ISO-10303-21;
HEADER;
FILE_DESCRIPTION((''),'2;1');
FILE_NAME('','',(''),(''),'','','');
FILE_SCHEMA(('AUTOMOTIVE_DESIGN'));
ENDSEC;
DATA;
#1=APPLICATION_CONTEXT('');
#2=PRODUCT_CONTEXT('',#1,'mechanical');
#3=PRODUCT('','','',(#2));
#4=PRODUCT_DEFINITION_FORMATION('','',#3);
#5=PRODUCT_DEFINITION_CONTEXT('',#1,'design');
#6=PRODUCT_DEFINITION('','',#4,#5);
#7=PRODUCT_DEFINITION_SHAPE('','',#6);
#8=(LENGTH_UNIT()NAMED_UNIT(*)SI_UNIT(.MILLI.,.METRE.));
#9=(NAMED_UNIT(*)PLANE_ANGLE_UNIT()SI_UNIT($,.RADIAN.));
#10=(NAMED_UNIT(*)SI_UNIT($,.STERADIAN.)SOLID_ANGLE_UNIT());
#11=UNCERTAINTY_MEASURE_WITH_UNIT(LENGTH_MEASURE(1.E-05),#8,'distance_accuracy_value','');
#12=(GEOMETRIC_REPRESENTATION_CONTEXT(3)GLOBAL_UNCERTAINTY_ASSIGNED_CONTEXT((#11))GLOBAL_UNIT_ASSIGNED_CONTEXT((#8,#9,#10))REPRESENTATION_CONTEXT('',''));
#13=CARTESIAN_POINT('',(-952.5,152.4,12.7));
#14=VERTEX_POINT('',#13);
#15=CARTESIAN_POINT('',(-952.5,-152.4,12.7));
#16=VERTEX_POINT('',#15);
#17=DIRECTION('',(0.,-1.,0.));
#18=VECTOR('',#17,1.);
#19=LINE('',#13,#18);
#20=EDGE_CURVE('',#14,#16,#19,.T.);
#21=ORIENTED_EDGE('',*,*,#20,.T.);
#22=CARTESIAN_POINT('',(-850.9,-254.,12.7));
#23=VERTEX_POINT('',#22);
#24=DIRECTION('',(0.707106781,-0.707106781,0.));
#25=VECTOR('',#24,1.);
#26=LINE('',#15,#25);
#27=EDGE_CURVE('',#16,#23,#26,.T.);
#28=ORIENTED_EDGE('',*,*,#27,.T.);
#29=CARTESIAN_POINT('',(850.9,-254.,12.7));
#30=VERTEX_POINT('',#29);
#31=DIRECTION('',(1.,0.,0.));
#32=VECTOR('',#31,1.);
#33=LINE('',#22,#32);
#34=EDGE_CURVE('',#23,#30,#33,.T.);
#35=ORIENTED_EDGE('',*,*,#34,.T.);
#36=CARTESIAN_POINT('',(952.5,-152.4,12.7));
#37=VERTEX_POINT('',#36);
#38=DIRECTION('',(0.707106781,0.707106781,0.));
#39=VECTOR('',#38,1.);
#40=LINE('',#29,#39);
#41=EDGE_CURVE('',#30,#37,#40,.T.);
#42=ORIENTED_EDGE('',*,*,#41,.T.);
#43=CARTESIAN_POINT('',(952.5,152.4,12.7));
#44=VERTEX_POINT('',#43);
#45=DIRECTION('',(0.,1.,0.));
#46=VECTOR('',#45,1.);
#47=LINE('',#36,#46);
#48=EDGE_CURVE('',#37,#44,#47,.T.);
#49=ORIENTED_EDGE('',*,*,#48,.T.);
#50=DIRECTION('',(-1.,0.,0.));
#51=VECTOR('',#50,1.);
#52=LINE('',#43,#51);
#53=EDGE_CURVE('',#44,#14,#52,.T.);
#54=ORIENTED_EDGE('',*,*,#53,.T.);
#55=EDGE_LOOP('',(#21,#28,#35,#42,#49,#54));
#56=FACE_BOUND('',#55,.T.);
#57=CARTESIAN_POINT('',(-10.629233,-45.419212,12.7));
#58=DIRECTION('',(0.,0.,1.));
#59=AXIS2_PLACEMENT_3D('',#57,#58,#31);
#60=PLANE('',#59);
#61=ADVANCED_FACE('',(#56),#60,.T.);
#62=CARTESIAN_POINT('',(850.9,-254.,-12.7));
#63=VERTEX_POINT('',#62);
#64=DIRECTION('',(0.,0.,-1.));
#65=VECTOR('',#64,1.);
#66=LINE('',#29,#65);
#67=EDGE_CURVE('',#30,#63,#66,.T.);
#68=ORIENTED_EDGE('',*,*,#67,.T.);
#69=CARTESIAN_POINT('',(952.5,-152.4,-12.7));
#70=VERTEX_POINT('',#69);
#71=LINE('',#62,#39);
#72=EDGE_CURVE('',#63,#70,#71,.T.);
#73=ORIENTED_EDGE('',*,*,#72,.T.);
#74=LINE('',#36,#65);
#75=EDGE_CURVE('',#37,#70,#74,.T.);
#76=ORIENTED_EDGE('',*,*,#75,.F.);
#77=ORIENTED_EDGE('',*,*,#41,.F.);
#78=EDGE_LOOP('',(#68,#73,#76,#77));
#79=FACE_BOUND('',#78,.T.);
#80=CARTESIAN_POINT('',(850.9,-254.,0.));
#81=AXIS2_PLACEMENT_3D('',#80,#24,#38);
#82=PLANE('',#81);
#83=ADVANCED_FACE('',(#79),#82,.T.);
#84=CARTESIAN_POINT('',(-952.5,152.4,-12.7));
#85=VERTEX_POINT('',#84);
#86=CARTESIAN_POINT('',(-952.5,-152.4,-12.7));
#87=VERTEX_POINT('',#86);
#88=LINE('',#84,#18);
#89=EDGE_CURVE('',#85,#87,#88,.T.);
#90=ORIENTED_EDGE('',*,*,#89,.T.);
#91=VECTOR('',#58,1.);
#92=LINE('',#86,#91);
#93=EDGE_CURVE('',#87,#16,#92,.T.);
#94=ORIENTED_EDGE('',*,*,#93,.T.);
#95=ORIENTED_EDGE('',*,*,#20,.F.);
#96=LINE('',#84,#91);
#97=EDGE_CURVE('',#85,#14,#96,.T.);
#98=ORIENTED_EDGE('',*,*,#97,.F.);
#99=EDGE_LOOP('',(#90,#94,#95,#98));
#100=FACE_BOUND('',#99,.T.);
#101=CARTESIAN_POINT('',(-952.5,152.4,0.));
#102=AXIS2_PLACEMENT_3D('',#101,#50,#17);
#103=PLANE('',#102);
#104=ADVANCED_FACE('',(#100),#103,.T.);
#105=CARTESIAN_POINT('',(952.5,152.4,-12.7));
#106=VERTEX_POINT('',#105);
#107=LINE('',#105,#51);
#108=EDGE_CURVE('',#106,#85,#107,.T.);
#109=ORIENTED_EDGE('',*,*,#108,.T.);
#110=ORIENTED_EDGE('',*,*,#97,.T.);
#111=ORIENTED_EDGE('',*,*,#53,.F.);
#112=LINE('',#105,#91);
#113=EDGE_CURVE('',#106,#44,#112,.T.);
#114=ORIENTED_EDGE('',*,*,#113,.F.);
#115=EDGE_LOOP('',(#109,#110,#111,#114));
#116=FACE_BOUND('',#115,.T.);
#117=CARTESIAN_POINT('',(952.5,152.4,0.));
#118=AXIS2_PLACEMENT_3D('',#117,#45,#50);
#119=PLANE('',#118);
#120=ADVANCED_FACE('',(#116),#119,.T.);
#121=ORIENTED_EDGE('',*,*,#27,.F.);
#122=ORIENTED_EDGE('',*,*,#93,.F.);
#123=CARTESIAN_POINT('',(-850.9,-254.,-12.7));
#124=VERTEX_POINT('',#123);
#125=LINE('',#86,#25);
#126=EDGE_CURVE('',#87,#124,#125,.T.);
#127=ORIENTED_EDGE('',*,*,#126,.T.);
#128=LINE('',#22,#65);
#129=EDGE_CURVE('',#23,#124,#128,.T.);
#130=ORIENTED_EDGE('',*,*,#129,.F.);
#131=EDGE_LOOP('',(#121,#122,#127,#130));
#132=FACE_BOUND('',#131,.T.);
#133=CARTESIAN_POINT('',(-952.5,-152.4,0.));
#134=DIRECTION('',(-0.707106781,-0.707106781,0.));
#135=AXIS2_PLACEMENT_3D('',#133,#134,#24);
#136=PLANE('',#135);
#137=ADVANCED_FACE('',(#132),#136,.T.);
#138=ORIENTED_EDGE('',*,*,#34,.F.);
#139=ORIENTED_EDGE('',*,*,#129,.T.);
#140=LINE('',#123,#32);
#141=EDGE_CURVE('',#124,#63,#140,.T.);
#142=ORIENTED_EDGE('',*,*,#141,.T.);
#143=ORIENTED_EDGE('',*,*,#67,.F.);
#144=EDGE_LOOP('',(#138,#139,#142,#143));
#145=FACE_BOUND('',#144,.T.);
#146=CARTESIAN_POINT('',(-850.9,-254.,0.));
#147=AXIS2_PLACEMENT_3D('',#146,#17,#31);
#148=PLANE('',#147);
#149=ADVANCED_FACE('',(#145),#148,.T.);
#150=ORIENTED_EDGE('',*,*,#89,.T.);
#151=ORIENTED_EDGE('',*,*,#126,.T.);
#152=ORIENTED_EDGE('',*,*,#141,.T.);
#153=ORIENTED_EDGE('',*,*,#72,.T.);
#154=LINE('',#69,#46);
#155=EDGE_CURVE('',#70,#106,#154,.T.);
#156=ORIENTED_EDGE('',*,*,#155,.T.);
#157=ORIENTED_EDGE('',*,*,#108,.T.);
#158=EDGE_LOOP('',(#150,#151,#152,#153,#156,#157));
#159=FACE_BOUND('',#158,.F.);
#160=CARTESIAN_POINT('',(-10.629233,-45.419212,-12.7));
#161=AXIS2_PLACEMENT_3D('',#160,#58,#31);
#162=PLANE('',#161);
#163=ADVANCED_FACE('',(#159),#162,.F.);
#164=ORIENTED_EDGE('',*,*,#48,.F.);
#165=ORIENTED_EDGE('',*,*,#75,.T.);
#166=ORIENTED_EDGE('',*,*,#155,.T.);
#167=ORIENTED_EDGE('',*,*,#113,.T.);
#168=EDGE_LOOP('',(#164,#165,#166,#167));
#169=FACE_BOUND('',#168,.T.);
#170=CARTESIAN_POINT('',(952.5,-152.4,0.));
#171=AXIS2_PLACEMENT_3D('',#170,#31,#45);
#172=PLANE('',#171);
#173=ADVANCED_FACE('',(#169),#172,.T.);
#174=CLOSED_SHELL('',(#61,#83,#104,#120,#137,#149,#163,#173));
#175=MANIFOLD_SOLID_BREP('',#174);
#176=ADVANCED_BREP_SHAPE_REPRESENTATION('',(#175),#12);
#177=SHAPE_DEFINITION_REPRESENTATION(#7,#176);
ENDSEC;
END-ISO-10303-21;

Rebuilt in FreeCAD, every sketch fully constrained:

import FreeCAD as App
import Part
import Sketcher
Q = App.Units.Quantity

doc = App.newDocument("Part")
body = doc.addObject("PartDesign::Body", "Body")

# Sketch on XY plane
sketch1 = doc.addObject("Sketcher::SketchObject", "Sketch")
body.addObject(sketch1)
sketch1.AttachmentSupport = (doc.XY_Plane, [""])
sketch1.MapMode = "FlatFace"
sketch1.addGeometry([
    Part.LineSegment(App.Vector(952, -152, 0), App.Vector(952, 152, 0)),  # 0
    Part.LineSegment(App.Vector(952, 152, 0), App.Vector(-952, 152, 0)),  # 1
    Part.LineSegment(App.Vector(-952, 152, 0), App.Vector(-952, -152, 0)),  # 2
    Part.LineSegment(App.Vector(-952, -152, 0), App.Vector(-851, -254, 0)),  # 3
    Part.LineSegment(App.Vector(-851, -254, 0), App.Vector(851, -254, 0)),  # 4
    Part.LineSegment(App.Vector(851, -254, 0), App.Vector(952, -152, 0)),  # 5
], False)
sketch1.addConstraint([
    Sketcher.Constraint("Coincident", 0, 2, 1, 1),
    Sketcher.Constraint("Coincident", 1, 2, 2, 1),
    Sketcher.Constraint("Coincident", 2, 2, 3, 1),
    Sketcher.Constraint("Coincident", 3, 2, 4, 1),
    Sketcher.Constraint("Coincident", 4, 2, 5, 1),
    Sketcher.Constraint("Coincident", 5, 2, 0, 1),
    Sketcher.Constraint("Vertical", 0),
    Sketcher.Constraint("Horizontal", 1),
    Sketcher.Constraint("Vertical", 2),
    Sketcher.Constraint("Horizontal", 4),
    Sketcher.Constraint("Symmetric", 0, 2, 2, 2, -1, 1),
    Sketcher.Constraint("Perpendicular", 3, 5),
    Sketcher.Constraint("Horizontal", 2, 2, 5, 2),
    Sketcher.Constraint("Equal", 3, 5),
    Sketcher.Constraint("DistanceX", 1, 2, 1, 1, Q("75 in")),
    Sketcher.Constraint("DistanceX", 4, 1, 4, 2, Q("67 in")),
    Sketcher.Constraint("DistanceY", 0, 1, 0, 2, Q("12 in")),
])
pad1 = doc.addObject("PartDesign::Pad", "Pad")
body.addObject(pad1)
pad1.Profile = sketch1
pad1.Length = Q("1 in")
pad1.Midplane = True

doc.recompute()
